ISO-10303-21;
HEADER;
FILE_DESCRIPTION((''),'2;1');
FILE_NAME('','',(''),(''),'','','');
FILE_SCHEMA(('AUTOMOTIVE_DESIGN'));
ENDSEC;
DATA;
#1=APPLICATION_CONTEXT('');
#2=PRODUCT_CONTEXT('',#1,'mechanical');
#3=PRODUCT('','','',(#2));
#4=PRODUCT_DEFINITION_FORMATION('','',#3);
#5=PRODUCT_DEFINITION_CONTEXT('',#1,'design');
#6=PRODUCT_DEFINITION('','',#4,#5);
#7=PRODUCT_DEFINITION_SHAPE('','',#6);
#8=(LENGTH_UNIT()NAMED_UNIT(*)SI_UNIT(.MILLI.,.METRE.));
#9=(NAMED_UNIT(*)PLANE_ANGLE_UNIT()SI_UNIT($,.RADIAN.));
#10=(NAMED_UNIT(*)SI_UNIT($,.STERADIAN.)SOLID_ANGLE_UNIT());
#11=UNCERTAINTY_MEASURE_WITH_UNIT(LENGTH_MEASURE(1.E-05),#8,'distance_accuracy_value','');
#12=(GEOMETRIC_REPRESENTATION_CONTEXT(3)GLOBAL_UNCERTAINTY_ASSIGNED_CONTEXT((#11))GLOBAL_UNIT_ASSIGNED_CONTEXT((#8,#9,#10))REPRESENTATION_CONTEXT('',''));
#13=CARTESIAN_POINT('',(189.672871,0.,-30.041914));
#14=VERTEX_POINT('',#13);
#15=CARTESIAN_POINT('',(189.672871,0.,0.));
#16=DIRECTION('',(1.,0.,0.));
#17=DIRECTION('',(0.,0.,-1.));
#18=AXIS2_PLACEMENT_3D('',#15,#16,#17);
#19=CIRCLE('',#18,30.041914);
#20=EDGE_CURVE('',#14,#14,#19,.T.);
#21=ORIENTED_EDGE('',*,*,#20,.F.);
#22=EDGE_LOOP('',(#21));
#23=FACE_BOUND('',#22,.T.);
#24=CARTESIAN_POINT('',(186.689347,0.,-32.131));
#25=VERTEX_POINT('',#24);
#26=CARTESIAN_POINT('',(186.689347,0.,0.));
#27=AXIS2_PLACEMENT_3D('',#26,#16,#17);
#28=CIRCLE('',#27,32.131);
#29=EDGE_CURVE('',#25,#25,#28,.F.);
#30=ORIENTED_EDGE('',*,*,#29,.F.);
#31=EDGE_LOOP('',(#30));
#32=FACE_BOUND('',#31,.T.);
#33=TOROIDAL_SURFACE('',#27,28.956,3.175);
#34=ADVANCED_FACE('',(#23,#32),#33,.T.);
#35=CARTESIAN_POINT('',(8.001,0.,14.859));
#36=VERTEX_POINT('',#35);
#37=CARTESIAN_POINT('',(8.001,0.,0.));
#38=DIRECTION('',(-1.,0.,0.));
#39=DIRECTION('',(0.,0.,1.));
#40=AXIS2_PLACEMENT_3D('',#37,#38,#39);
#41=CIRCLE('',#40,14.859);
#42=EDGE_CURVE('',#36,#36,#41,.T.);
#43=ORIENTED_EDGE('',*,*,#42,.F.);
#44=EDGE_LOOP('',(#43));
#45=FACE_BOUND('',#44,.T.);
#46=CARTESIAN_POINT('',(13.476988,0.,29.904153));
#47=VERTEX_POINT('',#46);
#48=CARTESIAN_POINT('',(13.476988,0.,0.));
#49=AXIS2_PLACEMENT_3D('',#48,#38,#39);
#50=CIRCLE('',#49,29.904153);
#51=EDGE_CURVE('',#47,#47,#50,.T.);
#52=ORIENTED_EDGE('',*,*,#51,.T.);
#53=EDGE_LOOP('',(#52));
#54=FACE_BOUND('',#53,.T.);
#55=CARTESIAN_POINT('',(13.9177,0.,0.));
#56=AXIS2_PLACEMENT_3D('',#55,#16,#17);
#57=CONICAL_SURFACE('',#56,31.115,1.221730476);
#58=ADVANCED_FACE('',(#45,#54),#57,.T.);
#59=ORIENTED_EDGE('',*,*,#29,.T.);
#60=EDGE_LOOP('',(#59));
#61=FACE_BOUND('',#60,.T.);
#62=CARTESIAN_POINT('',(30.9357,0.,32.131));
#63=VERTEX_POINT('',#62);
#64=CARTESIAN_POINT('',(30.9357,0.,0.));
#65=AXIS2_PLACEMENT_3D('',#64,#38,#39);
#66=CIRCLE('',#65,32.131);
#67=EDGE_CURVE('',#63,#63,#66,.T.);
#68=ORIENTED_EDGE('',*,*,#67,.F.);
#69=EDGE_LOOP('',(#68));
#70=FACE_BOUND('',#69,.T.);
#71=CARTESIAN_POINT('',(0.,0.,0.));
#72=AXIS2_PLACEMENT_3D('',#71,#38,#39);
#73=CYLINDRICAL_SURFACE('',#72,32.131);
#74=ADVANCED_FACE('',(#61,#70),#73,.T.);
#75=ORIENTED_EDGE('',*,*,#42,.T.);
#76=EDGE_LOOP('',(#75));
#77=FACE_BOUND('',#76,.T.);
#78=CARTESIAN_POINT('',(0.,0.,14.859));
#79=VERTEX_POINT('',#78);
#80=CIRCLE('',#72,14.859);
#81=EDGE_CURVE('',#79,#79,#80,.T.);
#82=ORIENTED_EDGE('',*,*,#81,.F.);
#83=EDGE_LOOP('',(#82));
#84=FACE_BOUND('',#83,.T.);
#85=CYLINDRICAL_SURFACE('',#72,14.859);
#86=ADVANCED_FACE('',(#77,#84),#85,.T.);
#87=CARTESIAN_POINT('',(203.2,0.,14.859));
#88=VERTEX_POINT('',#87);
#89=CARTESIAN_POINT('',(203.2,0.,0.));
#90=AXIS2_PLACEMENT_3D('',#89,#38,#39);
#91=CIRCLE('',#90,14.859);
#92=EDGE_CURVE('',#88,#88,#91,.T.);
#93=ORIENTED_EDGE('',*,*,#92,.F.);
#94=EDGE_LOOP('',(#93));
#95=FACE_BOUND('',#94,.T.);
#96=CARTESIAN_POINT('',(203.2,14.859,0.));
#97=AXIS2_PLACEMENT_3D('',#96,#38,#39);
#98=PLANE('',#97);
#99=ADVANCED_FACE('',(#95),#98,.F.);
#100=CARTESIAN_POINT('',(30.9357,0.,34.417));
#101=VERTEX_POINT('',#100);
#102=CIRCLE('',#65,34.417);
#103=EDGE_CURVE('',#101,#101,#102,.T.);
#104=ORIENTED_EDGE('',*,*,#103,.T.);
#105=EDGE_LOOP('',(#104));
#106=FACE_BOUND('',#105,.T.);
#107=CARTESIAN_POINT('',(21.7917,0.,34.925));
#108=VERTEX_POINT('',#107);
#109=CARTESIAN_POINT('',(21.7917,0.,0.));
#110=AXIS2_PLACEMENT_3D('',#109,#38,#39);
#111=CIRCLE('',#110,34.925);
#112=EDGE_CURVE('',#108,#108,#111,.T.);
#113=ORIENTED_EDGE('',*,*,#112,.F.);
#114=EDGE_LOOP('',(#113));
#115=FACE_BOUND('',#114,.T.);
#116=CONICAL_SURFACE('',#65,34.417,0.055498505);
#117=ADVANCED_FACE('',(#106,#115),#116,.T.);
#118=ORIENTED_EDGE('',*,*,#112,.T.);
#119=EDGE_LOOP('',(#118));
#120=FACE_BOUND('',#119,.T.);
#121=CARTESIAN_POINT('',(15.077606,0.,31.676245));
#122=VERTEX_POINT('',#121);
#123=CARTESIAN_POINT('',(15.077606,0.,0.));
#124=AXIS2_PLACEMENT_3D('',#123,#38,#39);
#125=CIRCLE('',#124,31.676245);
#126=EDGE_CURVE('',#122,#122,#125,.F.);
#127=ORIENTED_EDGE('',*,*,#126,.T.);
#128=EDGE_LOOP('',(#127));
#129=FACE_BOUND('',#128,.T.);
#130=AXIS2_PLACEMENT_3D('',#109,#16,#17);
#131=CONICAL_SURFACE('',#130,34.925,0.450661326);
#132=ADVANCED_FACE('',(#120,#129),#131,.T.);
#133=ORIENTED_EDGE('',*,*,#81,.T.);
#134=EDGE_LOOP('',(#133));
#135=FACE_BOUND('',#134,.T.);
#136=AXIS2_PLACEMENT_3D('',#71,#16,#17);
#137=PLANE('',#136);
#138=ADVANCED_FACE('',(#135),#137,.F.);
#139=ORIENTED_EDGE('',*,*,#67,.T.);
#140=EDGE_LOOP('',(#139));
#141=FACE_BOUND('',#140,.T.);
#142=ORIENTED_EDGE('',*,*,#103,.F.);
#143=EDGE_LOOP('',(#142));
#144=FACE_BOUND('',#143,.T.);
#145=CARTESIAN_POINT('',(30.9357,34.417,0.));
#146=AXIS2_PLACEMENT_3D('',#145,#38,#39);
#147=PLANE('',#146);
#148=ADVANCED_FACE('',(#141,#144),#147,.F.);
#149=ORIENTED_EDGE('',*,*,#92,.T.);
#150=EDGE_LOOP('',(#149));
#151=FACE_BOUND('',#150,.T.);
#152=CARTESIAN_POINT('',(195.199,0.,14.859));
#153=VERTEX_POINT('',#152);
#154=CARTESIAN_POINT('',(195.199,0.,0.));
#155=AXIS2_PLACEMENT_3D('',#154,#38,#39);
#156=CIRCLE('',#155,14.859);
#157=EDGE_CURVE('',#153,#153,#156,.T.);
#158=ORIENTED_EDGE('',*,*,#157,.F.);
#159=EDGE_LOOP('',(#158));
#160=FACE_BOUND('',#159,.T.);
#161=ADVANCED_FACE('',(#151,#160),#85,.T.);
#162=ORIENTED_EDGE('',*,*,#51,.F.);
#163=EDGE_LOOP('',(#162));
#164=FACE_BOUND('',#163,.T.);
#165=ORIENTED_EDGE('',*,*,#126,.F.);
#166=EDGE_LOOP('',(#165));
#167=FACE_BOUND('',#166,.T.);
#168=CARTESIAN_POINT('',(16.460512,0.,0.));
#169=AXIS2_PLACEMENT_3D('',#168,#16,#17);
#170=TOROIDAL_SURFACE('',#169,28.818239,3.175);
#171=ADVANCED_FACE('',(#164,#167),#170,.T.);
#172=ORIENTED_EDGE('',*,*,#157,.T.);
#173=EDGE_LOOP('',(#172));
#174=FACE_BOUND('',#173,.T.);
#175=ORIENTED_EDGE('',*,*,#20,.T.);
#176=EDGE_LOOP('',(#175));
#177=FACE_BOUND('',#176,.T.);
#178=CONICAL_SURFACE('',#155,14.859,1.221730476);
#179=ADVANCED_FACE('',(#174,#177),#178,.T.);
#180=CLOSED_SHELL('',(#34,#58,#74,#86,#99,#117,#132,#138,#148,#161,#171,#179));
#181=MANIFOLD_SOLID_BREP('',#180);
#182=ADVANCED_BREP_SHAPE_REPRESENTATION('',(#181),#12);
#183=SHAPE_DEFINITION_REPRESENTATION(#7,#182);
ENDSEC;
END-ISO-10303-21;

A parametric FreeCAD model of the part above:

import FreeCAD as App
import Part
import Sketcher
Q = App.Units.Quantity


def edges_at(feature, points):
    """Names of the edges that pass closest to the given points."""
    edges = feature.Shape.Edges
    near = lambda p: min(range(len(edges)), key=lambda i: edges[i].distToShape(Part.Vertex(*p))[0])
    return sorted({f"Edge{near(p) + 1}" for p in points})

doc = App.newDocument("Part")
body = doc.addObject("PartDesign::Body", "Body")

# Sketch on XY plane
sketch1 = body.newObject("Sketcher::SketchObject", "Sketch")
sketch1.AttachmentSupport = (doc.getObject("XY_Plane"), [""])
sketch1.MapMode = "FlatFace"
sketch1.addGeometry(Part.LineSegment(App.Vector(0, 14.9, 0), App.Vector(0, 0, 0)), False)
sketch1.addGeometry(Part.LineSegment(App.Vector(0, 0, 0), App.Vector(203.2, 0, 0)), False)
sketch1.addGeometry(Part.LineSegment(App.Vector(203.2, 0, 0), App.Vector(203.2, 14.9, 0)), False)
sketch1.addGeometry(Part.LineSegment(App.Vector(203.2, 14.9, 0), App.Vector(195.2, 14.9, 0)), False)
sketch1.addGeometry(Part.LineSegment(App.Vector(195.2, 14.9, 0), App.Vector(188.9, 32.1, 0)), False)
sketch1.addGeometry(Part.LineSegment(App.Vector(188.9, 32.1, 0), App.Vector(30.9, 32.1, 0)), False)
sketch1.addGeometry(Part.LineSegment(App.Vector(30.9, 32.1, 0), App.Vector(30.9, 34.4, 0)), False)
sketch1.addGeometry(Part.LineSegment(App.Vector(30.9, 34.4, 0), App.Vector(21.8, 34.9, 0)), False)
sketch1.addGeometry(Part.LineSegment(App.Vector(21.8, 34.9, 0), App.Vector(13.9, 31.1, 0)), False)
sketch1.addGeometry(Part.LineSegment(App.Vector(13.9, 31.1, 0), App.Vector(8, 14.9, 0)), False)
sketch1.addGeometry(Part.LineSegment(App.Vector(8, 14.9, 0), App.Vector(0, 14.9, 0)), False)
sketch1.addConstraint(Sketcher.Constraint("Coincident", 0, 2, 1, 1))
sketch1.addConstraint(Sketcher.Constraint("Coincident", 1, 2, 2, 1))
sketch1.addConstraint(Sketcher.Constraint("Coincident", 2, 2, 3, 1))
sketch1.addConstraint(Sketcher.Constraint("Coincident", 3, 2, 4, 1))
sketch1.addConstraint(Sketcher.Constraint("Coincident", 4, 2, 5, 1))
sketch1.addConstraint(Sketcher.Constraint("Coincident", 5, 2, 6, 1))
sketch1.addConstraint(Sketcher.Constraint("Coincident", 6, 2, 7, 1))
sketch1.addConstraint(Sketcher.Constraint("Coincident", 7, 2, 8, 1))
sketch1.addConstraint(Sketcher.Constraint("Coincident", 8, 2, 9, 1))
sketch1.addConstraint(Sketcher.Constraint("Coincident", 9, 2, 10, 1))
sketch1.addConstraint(Sketcher.Constraint("Coincident", 10, 2, 0, 1))
sketch1.addConstraint(Sketcher.Constraint("Vertical", 0))
sketch1.addConstraint(Sketcher.Constraint("Horizontal", 1))
sketch1.addConstraint(Sketcher.Constraint("Vertical", 2))
sketch1.addConstraint(Sketcher.Constraint("Horizontal", 3))
sketch1.addConstraint(Sketcher.Constraint("Horizontal", 5))
sketch1.addConstraint(Sketcher.Constraint("Vertical", 6))
sketch1.addConstraint(Sketcher.Constraint("Horizontal", 10))
sketch1.addConstraint(Sketcher.Constraint("Coincident", 0, 2, -1, 1))
sketch1.addConstraint(Sketcher.Constraint("Horizontal", 3, 2, 9, 2))
sketch1.addConstraint(Sketcher.Constraint("Equal", 3, 10))
sketch1.addConstraint(Sketcher.Constraint("DistanceX", 1, 1, 1, 2, Q("8 in")))
sketch1.addConstraint(Sketcher.Constraint("Angle", 4, Q("110 deg")))
sketch1.addConstraint(Sketcher.Constraint("Angle", 9, Q("-110 deg")))
sketch1.addConstraint(Sketcher.Constraint("DistanceY", 6, 1, 6, 2, Q("0.09 in")))
sketch1.addConstraint(Sketcher.Constraint("DistanceX", 3, 2, 3, 1, Q("0.315 in")))
sketch1.addConstraint(Sketcher.Constraint("DistanceY", 0, 2, 0, 1, Q("0.585 in")))
sketch1.addConstraint(Sketcher.Constraint("DistanceY", 3, 2, 4, 2, Q("0.68 in")))
sketch1.addConstraint(Sketcher.Constraint("DistanceX", 7, 2, 6, 2, Q("0.36 in")))
sketch1.addConstraint(Sketcher.Constraint("DistanceY", 6, 2, 7, 2, Q("0.02 in")))
sketch1.addConstraint(Sketcher.Constraint("DistanceX", 8, 2, 7, 2, Q("0.31 in")))
sketch1.addConstraint(Sketcher.Constraint("DistanceY", 8, 2, 7, 2, Q("0.15 in")))
revolution = body.newObject("PartDesign::Revolution", "Revolution")
revolution.Profile = sketch1
revolution.ReferenceAxis = (sketch1, ["H_Axis"])
revolution.Angle = 360
doc.recompute()

fillet = body.newObject("PartDesign::Fillet", "Fillet")
fillet.Base = (revolution, edges_at(revolution, [(188.913, 0, -32.131), (13.918, 0, -31.115)]))
fillet.Radius = Q("0.125 in")

doc.recompute()
